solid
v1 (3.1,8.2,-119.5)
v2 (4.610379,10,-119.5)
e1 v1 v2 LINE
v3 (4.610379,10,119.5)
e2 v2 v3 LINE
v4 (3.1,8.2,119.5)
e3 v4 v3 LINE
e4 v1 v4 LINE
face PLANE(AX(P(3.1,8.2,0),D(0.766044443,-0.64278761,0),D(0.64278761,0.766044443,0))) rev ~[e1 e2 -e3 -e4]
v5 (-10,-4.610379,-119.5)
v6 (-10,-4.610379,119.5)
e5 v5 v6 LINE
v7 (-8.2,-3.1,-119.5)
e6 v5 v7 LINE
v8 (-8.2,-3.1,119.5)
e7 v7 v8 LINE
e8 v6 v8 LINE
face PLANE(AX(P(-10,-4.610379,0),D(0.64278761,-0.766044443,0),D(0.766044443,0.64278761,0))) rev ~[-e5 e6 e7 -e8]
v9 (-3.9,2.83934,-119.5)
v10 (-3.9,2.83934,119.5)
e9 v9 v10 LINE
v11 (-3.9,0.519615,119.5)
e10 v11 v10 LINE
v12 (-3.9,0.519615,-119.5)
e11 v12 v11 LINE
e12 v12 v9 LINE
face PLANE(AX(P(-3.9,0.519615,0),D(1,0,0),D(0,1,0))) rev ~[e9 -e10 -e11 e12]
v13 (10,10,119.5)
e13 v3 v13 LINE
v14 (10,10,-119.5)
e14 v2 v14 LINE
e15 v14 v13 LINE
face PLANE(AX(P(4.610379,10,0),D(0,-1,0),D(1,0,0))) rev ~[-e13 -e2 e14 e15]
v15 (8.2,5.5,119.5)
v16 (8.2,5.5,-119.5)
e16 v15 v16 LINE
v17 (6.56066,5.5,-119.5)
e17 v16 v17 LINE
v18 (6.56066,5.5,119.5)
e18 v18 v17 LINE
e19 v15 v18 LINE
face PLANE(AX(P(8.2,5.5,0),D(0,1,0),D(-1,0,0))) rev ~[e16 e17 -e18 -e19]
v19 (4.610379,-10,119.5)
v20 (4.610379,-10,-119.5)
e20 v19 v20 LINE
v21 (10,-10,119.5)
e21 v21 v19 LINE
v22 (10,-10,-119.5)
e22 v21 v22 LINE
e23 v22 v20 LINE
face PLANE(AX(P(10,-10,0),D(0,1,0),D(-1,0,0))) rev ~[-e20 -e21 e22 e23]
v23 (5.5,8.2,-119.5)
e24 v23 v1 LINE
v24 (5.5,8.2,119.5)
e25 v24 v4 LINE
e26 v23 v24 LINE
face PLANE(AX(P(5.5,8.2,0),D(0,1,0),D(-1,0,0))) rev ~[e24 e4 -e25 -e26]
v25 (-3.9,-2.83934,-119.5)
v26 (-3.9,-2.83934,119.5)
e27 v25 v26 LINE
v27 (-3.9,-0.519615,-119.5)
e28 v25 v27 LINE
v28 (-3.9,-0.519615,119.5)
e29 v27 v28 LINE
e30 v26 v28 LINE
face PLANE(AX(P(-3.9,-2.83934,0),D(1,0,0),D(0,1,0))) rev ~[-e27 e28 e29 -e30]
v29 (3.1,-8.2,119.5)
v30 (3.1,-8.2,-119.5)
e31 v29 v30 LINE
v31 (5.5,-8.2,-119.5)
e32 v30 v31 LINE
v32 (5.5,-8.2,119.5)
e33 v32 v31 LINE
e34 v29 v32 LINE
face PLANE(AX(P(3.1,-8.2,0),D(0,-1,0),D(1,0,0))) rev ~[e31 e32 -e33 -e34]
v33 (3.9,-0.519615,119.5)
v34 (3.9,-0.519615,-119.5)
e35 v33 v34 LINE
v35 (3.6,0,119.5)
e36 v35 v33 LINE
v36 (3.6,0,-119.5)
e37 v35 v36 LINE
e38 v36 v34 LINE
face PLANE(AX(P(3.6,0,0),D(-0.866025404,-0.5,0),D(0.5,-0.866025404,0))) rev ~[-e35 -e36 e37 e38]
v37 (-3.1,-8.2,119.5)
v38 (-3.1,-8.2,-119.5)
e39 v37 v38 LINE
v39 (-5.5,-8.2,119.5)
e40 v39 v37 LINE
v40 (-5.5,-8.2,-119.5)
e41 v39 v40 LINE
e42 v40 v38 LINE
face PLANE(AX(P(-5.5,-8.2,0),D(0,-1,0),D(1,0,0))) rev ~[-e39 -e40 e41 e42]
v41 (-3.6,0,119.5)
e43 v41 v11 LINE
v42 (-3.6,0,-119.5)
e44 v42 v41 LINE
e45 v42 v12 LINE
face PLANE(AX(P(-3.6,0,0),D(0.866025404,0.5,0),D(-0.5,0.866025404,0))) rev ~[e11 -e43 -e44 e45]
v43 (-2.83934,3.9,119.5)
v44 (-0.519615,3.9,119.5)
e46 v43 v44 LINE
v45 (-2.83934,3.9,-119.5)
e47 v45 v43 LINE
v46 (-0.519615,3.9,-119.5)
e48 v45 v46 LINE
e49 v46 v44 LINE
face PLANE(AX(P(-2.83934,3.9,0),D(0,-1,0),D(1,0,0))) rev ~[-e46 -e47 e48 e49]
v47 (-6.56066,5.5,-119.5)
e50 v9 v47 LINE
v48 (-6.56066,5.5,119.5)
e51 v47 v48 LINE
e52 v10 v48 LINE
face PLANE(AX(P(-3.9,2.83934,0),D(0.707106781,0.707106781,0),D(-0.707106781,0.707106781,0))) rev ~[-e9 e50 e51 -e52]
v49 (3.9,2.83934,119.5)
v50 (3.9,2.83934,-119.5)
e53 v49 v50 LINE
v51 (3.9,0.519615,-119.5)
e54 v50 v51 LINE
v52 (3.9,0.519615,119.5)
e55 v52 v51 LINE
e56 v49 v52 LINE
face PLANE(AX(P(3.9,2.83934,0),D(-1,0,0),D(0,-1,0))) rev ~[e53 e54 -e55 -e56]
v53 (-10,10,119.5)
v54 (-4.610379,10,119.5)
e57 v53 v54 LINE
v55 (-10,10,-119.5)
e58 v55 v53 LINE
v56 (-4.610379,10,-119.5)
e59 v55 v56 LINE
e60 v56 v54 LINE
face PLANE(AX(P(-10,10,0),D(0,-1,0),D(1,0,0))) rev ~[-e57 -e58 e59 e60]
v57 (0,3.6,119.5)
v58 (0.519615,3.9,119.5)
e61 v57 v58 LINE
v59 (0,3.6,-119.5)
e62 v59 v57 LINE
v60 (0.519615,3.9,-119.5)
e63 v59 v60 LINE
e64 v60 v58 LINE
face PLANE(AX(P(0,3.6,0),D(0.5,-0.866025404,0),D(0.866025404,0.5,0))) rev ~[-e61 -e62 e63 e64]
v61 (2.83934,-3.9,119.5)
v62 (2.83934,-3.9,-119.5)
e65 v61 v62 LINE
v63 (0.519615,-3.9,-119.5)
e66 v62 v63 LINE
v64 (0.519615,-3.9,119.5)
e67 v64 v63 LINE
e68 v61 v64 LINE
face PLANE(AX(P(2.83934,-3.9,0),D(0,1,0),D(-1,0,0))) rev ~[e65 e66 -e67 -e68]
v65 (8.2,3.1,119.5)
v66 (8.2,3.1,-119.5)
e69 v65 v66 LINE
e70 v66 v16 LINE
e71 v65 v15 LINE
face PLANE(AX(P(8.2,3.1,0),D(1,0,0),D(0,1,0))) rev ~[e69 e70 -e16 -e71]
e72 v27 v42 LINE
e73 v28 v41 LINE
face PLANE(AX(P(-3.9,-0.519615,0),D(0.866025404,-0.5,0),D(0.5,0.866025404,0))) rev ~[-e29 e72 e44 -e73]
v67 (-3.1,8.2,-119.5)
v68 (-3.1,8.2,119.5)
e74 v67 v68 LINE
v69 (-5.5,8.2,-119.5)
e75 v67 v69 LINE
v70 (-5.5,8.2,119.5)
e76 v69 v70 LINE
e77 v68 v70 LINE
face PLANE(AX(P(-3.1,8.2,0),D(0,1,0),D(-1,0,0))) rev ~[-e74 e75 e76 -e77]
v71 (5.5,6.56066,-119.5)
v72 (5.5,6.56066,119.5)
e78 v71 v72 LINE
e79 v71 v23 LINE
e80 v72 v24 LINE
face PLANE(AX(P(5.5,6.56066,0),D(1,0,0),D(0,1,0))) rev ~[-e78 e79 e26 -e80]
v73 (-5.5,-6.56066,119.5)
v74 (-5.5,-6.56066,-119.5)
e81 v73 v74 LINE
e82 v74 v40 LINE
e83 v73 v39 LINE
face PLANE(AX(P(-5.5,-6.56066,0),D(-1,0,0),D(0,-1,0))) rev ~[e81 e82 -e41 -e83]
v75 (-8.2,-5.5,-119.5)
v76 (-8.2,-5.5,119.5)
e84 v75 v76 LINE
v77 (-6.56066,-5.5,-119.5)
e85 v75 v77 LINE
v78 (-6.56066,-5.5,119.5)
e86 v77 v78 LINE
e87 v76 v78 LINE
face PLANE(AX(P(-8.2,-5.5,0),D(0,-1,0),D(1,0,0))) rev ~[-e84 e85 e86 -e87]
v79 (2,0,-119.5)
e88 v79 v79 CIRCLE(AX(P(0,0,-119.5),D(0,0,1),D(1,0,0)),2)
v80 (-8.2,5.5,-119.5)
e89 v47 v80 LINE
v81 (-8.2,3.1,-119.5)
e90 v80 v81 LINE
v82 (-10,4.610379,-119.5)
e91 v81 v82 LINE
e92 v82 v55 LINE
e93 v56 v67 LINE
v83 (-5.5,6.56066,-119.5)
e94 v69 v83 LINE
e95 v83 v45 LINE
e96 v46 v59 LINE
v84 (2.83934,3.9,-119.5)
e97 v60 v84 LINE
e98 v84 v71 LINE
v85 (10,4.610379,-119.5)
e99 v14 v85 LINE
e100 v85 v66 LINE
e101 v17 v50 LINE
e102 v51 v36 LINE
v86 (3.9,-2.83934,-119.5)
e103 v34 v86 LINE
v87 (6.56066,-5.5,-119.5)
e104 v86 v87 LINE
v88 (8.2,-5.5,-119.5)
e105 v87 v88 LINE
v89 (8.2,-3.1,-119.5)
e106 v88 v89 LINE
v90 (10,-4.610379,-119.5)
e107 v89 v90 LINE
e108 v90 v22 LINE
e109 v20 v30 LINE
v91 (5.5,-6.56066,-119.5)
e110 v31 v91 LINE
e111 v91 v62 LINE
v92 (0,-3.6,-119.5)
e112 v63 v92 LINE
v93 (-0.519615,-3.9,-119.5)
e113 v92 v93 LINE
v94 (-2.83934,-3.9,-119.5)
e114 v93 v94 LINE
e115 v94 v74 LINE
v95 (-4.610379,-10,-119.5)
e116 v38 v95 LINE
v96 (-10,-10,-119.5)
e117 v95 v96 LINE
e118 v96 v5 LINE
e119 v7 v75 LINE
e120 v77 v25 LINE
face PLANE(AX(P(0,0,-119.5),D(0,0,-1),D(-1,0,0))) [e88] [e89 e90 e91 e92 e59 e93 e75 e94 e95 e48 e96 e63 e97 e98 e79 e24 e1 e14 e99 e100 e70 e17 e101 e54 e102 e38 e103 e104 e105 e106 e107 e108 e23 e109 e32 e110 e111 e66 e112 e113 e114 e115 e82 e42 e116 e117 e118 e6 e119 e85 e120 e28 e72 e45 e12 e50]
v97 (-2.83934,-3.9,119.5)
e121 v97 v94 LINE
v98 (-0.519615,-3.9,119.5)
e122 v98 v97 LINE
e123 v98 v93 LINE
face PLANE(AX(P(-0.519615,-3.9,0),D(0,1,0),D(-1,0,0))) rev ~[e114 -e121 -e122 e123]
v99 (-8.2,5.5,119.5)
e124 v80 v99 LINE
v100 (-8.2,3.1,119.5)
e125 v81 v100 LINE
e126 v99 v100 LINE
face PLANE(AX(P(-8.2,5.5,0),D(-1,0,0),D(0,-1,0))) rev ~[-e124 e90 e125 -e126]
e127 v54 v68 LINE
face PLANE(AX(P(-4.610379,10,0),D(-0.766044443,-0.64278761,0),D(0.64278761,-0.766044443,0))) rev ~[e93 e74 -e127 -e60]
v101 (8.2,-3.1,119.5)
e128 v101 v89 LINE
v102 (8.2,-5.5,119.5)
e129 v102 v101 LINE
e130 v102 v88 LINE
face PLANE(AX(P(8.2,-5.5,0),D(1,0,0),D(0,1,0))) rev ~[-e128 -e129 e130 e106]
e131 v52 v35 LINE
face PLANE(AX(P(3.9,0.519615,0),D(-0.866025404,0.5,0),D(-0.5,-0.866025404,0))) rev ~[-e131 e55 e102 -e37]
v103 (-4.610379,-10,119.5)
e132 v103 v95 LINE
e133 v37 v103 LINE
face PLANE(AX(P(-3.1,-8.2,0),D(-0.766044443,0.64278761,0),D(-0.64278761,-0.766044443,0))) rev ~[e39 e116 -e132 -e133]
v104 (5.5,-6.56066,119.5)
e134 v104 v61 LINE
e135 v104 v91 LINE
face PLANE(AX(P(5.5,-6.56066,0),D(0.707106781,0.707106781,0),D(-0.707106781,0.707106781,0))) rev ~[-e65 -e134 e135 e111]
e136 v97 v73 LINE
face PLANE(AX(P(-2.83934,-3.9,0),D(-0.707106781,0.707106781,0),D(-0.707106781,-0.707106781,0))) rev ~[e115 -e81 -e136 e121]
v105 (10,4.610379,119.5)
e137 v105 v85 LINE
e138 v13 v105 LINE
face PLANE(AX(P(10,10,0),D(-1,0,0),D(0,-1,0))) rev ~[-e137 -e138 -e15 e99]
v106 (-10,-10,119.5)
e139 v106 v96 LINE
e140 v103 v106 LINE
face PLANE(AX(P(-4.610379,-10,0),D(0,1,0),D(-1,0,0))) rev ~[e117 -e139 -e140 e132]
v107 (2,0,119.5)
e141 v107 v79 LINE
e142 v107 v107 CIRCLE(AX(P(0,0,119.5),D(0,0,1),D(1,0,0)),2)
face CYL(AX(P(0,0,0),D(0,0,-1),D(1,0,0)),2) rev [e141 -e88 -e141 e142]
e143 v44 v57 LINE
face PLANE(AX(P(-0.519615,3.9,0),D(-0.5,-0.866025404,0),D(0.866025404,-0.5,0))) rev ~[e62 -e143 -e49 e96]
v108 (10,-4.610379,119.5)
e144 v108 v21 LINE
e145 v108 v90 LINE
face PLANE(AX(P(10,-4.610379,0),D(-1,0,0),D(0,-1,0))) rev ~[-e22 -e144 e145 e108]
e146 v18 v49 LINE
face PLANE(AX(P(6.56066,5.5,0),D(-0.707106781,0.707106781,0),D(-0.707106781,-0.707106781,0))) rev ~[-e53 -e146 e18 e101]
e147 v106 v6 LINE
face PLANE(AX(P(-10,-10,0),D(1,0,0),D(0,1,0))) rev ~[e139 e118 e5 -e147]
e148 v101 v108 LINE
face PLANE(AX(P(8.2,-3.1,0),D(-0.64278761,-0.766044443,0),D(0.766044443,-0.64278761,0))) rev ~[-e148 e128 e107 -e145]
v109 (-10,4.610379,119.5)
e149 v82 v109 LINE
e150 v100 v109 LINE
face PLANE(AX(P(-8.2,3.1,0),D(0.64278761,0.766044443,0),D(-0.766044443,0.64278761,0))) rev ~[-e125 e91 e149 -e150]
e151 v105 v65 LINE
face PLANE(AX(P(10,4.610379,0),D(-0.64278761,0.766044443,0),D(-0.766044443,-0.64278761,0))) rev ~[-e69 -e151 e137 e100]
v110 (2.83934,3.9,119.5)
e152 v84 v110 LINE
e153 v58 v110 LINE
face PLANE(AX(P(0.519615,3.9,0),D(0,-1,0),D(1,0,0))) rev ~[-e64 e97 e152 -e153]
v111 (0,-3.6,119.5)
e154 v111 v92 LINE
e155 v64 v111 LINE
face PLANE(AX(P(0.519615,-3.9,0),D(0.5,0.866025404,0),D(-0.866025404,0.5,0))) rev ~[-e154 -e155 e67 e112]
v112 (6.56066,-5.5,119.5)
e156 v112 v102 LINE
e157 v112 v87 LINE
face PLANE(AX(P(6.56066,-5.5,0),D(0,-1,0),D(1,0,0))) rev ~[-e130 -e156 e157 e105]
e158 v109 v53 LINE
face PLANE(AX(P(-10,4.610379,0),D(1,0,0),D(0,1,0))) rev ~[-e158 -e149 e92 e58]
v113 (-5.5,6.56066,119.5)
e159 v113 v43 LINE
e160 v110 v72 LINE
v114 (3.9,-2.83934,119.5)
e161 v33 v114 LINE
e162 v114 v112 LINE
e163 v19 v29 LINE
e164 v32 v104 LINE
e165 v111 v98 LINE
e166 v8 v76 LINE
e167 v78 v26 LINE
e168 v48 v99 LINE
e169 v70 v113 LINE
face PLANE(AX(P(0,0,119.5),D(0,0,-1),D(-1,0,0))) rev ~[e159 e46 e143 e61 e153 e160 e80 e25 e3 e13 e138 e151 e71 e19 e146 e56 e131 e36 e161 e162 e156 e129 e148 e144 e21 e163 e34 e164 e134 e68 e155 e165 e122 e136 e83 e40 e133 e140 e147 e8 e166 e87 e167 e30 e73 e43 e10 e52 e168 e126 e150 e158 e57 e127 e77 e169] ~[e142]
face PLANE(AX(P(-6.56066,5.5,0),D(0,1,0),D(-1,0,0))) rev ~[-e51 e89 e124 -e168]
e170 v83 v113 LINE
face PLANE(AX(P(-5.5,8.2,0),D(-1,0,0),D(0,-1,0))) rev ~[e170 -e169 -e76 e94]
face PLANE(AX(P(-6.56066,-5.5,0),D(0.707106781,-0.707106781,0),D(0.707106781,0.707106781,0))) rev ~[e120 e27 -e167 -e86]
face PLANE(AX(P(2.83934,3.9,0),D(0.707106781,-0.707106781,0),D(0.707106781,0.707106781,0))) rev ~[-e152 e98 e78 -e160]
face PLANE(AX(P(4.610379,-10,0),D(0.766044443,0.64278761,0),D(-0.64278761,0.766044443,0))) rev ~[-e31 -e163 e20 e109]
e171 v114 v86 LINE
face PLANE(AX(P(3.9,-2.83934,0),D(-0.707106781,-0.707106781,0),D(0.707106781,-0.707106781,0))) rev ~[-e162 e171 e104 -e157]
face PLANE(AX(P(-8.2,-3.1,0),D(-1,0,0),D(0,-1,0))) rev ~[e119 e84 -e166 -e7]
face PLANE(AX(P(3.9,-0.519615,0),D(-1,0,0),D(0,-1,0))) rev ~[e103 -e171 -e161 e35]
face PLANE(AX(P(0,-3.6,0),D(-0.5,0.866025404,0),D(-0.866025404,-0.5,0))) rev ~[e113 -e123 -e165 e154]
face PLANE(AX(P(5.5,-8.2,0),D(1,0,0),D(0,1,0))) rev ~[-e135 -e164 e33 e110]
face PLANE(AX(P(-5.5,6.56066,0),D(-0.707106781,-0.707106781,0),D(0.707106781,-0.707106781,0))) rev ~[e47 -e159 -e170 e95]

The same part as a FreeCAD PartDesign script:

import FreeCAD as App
import Part
import Sketcher

V = App.Vector
Q = App.Units.Quantity


def add_polygon(sketch, points):
    """Adds a closed chain of lines whose ends are joined by coincident constraints."""
    first, n = sketch.GeometryCount, len(points)
    for a, b in zip(points, points[1:] + points[:1]):
        sketch.addGeometry(Part.LineSegment(App.Vector(*a, 0), App.Vector(*b, 0)), False)
    for i in range(n):
        sketch.addConstraint(Sketcher.Constraint("Coincident", first + i, 2, first + (i + 1) % n, 1))

doc = App.newDocument("Part")
params = doc.addObject("Spreadsheet::Sheet", "Params")
for row, (alias, value) in enumerate([
    ("sketch1_diameter", "4 mm"),
    ("sketch1_width", "2.4 mm"),
    ("sketch1_length", "0.6 mm"),
    ("pad1_length", "239 mm"),
], start=1):
    params.set(f"A{row}", alias)
    params.set(f"B{row}", "=" + value)
    params.setAlias(f"B{row}", alias)

body = doc.addObject("PartDesign::Body", "Body")

sketch1 = body.newObject("Sketcher::SketchObject", "Sketch")
sketch1.AttachmentSupport = (doc.getObject("XY_Plane"), [""])
sketch1.MapMode = "FlatFace"
add_polygon(sketch1, [(10, 4.6), (10, 10), (4.6, 10), (3.1, 8.2), (5.5, 8.2), (5.5, 6.6), (2.8, 3.9), (0.5, 3.9), (0, 3.6), (-0.5, 3.9), (-2.8, 3.9), (-5.5, 6.6), (-5.5, 8.2), (-3.1, 8.2), (-4.6, 10), (-10, 10), (-10, 4.6), (-8.2, 3.1), (-8.2, 5.5), (-6.6, 5.5), (-3.9, 2.8), (-3.9, 0.5), (-3.6, 0), (-3.9, -0.5), (-3.9, -2.8), (-6.6, -5.5), (-8.2, -5.5), (-8.2, -3.1), (-10, -4.6), (-10, -10), (-4.6, -10), (-3.1, -8.2), (-5.5, -8.2), (-5.5, -6.6), (-2.8, -3.9), (-0.5, -3.9), (0, -3.6), (0.5, -3.9), (2.8, -3.9), (5.5, -6.6), (5.5, -8.2), (3.1, -8.2), (4.6, -10), (10, -10), (10, -4.6), (8.2, -3.1), (8.2, -5.5), (6.6, -5.5), (3.9, -2.8), (3.9, -0.5), (3.6, 0), (3.9, 0.5), (3.9, 2.8), (6.6, 5.5), (8.2, 5.5), (8.2, 3.1)])
sketch1.addGeometry(Part.Circle(V(0, 0, 0), V(0, 0, 1), 2), False)
sketch1.addConstraint([
    Sketcher.Constraint("Vertical", 0),
    Sketcher.Constraint("Horizontal", 1),
    Sketcher.Constraint("Horizontal", 3),
    Sketcher.Constraint("Vertical", 4),
    Sketcher.Constraint("Horizontal", 6),
    Sketcher.Constraint("Horizontal", 9),
    Sketcher.Constraint("Vertical", 11),
    Sketcher.Constraint("Horizontal", 12),
    Sketcher.Constraint("Horizontal", 14),
    Sketcher.Constraint("Vertical", 15),
    Sketcher.Constraint("Vertical", 17),
    Sketcher.Constraint("Horizontal", 18),
    Sketcher.Constraint("Vertical", 20),
    Sketcher.Constraint("Vertical", 23),
    Sketcher.Constraint("Horizontal", 25),
    Sketcher.Constraint("Vertical", 26),
    Sketcher.Constraint("Vertical", 28),
    Sketcher.Constraint("Horizontal", 29),
    Sketcher.Constraint("Horizontal", 31),
    Sketcher.Constraint("Vertical", 32),
    Sketcher.Constraint("Horizontal", 34),
    Sketcher.Constraint("Horizontal", 37),
    Sketcher.Constraint("Vertical", 39),
    Sketcher.Constraint("Horizontal", 40),
    Sketcher.Constraint("Horizontal", 42),
    Sketcher.Constraint("Vertical", 43),
    Sketcher.Constraint("Vertical", 45),
    Sketcher.Constraint("Horizontal", 46),
    Sketcher.Constraint("Vertical", 48),
    Sketcher.Constraint("Vertical", 51),
    Sketcher.Constraint("Horizontal", 53),
    Sketcher.Constraint("Vertical", 54),
    Sketcher.Constraint("Coincident", 56, 3, -1, 1),
    Sketcher.Constraint("Symmetric", 0, 2, 28, 2, -1, 1),
    Sketcher.Constraint("Symmetric", 2, 2, 30, 2, -1, 1),
    Sketcher.Constraint("Symmetric", 4, 2, 32, 2, -1, 1),
    Sketcher.Constraint("Symmetric", 5, 2, 33, 2, -1, 1),
    Sketcher.Constraint("Symmetric", 7, 2, 35, 2, -1, 1),
    Sketcher.Constraint("Symmetric", 8, 2, 36, 2, -1, 1),
    Sketcher.Constraint("Symmetric", 10, 2, 38, 2, -1, 1),
    Sketcher.Constraint("Symmetric", 12, 2, 40, 2, -1, 1),
    Sketcher.Constraint("Symmetric", 13, 2, 41, 2, -1, 1),
    Sketcher.Constraint("Symmetric", 15, 2, 43, 2, -1, 1),
    Sketcher.Constraint("Symmetric", 16, 2, 44, 2, -1, 1),
    Sketcher.Constraint("Symmetric", 18, 2, 46, 2, -1, 1),
    Sketcher.Constraint("Symmetric", 19, 2, 47, 2, -1, 1),
    Sketcher.Constraint("Symmetric", 21, 2, 49, 2, -1, 1),
    Sketcher.Constraint("Symmetric", 22, 2, 50, 2, -1, 1),
    Sketcher.Constraint("Symmetric", 24, 2, 52, 2, -1, 1),
    Sketcher.Constraint("Symmetric", 26, 2, 54, 2, -1, 1),
    Sketcher.Constraint("Symmetric", 6, 2, 8, 2, -2),
    Sketcher.Constraint("Symmetric", 4, 2, 10, 2, -2),
    Sketcher.Constraint("Symmetric", 2, 2, 12, 2, -2),
    Sketcher.Constraint("Symmetric", 1, 2, 13, 2, -2),
    Sketcher.Constraint("Symmetric", 27, 2, 43, 2, -2),
    Sketcher.Constraint("Symmetric", 26, 2, 44, 2, -2),
    Sketcher.Constraint("Symmetric", 24, 2, 46, 2, -2),
    Sketcher.Constraint("Symmetric", 23, 2, 47, 2, -2),
    Sketcher.Constraint("PointOnObject", 7, 2, -2),
    Sketcher.Constraint("PointOnObject", 21, 2, -1),
    Sketcher.Constraint("Perpendicular", 5, 10),
    Sketcher.Constraint("Perpendicular", 2, 16),
    Sketcher.Constraint("Parallel", 10, 19),
    Sketcher.Constraint("Perpendicular", 7, 21),
    Sketcher.Constraint("Perpendicular", 8, 22),
    Sketcher.Constraint("Perpendicular", 19, 24),
    Sketcher.Constraint("Perpendicular", 16, 30),
    Sketcher.Constraint("Perpendicular", 21, 35),
    Sketcher.Constraint("Perpendicular", 33, 38),
    Sketcher.Constraint("Perpendicular", 35, 49),
    Sketcher.Constraint("Perpendicular", 47, 52),
    Sketcher.Constraint("Perpendicular", 41, 55),
    Sketcher.Constraint("Equal", 42, 0),
    Sketcher.Constraint("Equal", 53, 4),
    Sketcher.Constraint("Equal", 40, 17),
    Sketcher.Constraint("Equal", 37, 20),
    Sketcher.Constraint("Equal", 13, 16),
    Sketcher.Constraint("Equal", 10, 19),
    Sketcher.Constraint("Equal", 8, 21),
    Sketcher.Constraint("Diameter", 56, 4.0),
    Sketcher.Constraint("Angle", 2, Q("-130 deg")),
    Sketcher.Constraint("Angle", 7, Q("-150 deg")),
    Sketcher.Constraint("DistanceX", 3, 1, 3, 2, 2.4),
    Sketcher.Constraint("DistanceX", -1, 1, 0, 2, 10.0),
    Sketcher.Constraint("Distance", 7, 0.6),
    Sketcher.Constraint("DistanceX", -1, 1, 2, 2, 3.1),
    Sketcher.Constraint("DistanceY", -1, 1, 2, 2, 8.2),
    Sketcher.Constraint("DistanceY", -1, 1, 5, 2, 3.9),
    Sketcher.Constraint("DistanceX", 18, 1, 18, 2, 1.63934),
])
sketch1.setExpression("Constraints[135]", "Params.sketch1_diameter")
sketch1.setExpression("Constraints[138]", "Params.sketch1_width")
sketch1.setExpression("Constraints[140]", "Params.sketch1_length")
pad1 = body.newObject("PartDesign::Pad", "Pad")
pad1.Profile = sketch1
pad1.setExpression("Length", "Params.pad1_length")
pad1.Midplane = True

doc.recompute()
